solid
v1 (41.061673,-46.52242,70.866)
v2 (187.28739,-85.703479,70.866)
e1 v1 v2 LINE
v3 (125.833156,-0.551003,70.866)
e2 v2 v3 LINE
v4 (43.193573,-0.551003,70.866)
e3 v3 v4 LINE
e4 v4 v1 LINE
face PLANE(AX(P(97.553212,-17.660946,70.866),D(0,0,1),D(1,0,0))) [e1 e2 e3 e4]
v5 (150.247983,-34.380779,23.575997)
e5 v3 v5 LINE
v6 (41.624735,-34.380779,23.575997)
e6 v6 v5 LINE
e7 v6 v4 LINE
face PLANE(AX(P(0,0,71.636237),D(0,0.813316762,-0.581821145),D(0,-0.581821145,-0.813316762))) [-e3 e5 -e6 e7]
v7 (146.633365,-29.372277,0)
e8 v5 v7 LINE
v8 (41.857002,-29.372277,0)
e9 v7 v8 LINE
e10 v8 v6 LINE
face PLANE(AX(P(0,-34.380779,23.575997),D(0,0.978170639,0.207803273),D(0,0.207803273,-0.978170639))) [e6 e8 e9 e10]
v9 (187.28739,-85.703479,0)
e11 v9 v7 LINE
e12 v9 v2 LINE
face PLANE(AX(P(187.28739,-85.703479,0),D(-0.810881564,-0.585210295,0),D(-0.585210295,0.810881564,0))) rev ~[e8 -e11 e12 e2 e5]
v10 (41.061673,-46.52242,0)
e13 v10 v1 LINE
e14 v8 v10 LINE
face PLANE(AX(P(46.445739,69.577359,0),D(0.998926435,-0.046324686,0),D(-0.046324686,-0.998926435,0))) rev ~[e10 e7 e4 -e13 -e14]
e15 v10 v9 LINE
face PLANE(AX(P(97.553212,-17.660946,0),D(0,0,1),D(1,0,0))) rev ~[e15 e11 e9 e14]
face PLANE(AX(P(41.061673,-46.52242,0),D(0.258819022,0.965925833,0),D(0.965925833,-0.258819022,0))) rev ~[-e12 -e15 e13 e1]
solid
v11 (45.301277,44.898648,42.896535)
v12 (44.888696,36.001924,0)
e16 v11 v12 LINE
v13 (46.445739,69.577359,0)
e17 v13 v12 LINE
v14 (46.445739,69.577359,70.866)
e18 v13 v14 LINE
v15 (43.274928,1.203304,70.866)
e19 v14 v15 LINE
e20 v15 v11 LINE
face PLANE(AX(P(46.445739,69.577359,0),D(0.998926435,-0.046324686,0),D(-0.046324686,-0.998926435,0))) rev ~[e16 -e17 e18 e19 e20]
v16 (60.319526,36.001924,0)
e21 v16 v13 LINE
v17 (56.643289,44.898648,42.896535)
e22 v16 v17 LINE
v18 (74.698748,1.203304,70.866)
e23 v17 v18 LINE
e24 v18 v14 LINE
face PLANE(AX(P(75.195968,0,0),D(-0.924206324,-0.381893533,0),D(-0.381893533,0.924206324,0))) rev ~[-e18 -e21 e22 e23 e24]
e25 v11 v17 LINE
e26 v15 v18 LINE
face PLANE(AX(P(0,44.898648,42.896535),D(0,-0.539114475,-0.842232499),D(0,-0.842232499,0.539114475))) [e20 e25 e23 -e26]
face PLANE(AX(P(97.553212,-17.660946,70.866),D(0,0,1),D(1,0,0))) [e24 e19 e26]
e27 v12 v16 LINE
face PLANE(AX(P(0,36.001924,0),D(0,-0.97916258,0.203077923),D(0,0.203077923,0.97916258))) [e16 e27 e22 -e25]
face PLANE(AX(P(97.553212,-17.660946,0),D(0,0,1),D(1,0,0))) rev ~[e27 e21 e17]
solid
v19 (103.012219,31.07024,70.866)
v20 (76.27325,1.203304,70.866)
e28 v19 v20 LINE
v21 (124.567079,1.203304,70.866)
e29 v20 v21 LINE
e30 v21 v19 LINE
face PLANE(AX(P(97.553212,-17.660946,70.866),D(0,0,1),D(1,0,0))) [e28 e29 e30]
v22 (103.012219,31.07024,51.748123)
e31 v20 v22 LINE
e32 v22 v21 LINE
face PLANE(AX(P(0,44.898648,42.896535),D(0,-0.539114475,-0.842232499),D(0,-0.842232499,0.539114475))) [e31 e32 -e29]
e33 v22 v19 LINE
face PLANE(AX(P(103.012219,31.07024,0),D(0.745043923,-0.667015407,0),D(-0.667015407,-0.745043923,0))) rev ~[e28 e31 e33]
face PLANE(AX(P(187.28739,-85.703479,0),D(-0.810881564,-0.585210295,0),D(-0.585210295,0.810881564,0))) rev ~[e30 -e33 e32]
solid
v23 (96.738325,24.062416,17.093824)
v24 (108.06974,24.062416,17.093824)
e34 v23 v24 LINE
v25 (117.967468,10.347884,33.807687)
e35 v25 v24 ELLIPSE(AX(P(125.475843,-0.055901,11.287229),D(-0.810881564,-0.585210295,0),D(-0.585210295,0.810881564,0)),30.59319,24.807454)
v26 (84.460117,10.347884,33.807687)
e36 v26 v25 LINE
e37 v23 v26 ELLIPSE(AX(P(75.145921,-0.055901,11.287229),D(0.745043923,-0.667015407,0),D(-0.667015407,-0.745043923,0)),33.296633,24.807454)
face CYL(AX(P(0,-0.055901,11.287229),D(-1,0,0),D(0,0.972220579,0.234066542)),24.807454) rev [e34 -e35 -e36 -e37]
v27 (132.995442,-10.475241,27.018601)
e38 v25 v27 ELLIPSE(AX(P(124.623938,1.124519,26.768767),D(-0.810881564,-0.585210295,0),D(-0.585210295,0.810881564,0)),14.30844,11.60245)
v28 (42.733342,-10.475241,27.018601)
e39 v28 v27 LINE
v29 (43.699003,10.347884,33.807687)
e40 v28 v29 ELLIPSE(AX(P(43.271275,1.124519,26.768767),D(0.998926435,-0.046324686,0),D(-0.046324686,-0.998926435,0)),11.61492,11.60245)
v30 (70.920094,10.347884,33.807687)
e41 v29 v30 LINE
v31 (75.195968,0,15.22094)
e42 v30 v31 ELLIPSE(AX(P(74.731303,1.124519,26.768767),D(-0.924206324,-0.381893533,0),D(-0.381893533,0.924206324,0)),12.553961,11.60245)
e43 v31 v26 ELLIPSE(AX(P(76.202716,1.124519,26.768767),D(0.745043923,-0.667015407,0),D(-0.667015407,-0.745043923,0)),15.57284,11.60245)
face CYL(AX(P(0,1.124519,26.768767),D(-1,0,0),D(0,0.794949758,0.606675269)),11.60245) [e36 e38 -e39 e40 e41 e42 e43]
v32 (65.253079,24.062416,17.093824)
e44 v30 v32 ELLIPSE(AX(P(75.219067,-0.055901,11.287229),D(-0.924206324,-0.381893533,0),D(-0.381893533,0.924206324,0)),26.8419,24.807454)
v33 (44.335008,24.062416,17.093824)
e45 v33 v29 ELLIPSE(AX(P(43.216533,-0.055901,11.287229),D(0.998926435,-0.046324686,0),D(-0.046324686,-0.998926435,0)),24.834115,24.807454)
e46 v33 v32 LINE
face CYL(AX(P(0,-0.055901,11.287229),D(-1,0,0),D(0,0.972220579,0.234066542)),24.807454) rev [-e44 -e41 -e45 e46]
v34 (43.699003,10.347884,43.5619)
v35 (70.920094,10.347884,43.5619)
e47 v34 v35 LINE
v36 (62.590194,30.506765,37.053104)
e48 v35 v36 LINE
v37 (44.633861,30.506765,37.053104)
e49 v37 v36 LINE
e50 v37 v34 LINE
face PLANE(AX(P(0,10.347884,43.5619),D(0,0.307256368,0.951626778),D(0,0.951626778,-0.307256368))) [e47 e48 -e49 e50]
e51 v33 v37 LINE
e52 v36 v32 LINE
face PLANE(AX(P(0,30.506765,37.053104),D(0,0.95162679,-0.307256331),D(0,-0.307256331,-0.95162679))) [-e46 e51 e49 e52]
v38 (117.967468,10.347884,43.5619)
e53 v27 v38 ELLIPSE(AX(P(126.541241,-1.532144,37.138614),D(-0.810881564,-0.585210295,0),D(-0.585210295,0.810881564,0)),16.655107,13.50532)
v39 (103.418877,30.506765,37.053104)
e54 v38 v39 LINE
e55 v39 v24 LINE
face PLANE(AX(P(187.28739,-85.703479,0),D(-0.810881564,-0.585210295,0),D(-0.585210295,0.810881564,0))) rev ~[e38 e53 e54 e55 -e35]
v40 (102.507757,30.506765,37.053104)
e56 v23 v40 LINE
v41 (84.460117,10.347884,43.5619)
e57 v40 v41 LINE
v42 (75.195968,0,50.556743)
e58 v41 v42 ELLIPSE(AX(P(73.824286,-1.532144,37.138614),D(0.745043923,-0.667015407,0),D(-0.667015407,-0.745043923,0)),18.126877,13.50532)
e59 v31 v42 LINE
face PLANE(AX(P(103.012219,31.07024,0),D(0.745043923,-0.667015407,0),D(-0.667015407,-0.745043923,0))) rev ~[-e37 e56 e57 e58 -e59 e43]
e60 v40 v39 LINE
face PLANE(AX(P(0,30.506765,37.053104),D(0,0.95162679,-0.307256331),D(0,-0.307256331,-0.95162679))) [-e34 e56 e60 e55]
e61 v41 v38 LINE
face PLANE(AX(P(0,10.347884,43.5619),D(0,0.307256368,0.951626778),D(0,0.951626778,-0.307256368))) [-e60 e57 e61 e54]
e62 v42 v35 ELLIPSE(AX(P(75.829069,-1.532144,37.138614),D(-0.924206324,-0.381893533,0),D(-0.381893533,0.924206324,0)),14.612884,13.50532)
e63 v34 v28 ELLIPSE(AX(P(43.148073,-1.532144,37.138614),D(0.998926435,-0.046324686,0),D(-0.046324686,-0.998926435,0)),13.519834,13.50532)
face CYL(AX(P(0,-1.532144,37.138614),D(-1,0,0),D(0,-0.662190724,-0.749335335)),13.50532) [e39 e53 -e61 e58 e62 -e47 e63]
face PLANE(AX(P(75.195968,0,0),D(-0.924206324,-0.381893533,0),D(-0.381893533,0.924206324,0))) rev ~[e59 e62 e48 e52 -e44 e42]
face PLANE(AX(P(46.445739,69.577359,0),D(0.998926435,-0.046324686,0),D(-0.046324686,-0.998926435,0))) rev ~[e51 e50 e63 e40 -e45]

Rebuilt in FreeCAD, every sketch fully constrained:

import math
import FreeCAD as App
import Part
import Sketcher
from FreeCAD import Vector
Q = App.Units.Quantity


def add_polygon(sketch, points):
    """Adds a closed chain of lines whose ends are joined by coincident constraints."""
    first, n = sketch.GeometryCount, len(points)
    for a, b in zip(points, points[1:] + points[:1]):
        sketch.addGeometry(Part.LineSegment(App.Vector(*a, 0), App.Vector(*b, 0)), False)
    for i in range(n):
        sketch.addConstraint(Sketcher.Constraint("Coincident", first + i, 2, first + (i + 1) % n, 1))

doc = App.newDocument("Part")
body = doc.addObject("PartDesign::Body", "Body")
body.AllowCompound = True

# Sketch on XY plane
sketch1 = doc.addObject("Sketcher::SketchObject", "Sketch")
body.addObject(sketch1)
sketch1.AttachmentSupport = (doc.XY_Plane, [""])
sketch1.MapMode = "FlatFace"
add_polygon(sketch1, [(46, 70), (41, -47), (187, -86), (103, 31), (75, 0)])  # lines 0-4
sketch1.addConstraint([
    Sketcher.Constraint("PointOnObject", 3, 2, -1),
    Sketcher.Constraint("Angle", 1, Q("-14.999999 deg")),
    Sketcher.Constraint("Distance", 1, Q("5.96 in")),
    Sketcher.Constraint("Distance", 3, Q("41.702561 mm")),
    Sketcher.Constraint("Distance", 4, Q("75.283362 mm")),
    Sketcher.Constraint("DistanceY", 0, 2, -1, 1, Q("46.52242 mm")),
    Sketcher.Constraint("DistanceX", -1, 1, 1, 2, Q("187.28739 mm")),
    Sketcher.Constraint("DistanceX", -1, 1, 2, 2, Q("103.012219 mm")),
    Sketcher.Constraint("DistanceY", -1, 1, 2, 2, Q("31.07024 mm")),
    Sketcher.Constraint("DistanceX", -1, 1, 4, 2, Q("46.445739 mm")),
])
pad1 = doc.addObject("PartDesign::Pad", "Pad")
body.addObject(pad1)
pad1.Profile = sketch1
pad1.Length = Q("2.79 in")

# Sketch on YZ plane
sketch2 = doc.addObject("Sketcher::SketchObject", "Sketch001")
body.addObject(sketch2)
sketch2.AttachmentSupport = (doc.YZ_Plane, [""])
sketch2.MapMode = "FlatFace"
add_polygon(sketch2, [(-27.932592, -6.77688), (36.001924, 0), (44.898648, 42.896535), (0, 71.636237), (-34.380779, 23.575997)])  # lines 0-4
sketch2.addGeometry(Part.LineSegment(Vector(10.347884, 43.5619, 0), Vector(30.506765, 37.053104, 0)), False)  # 5
sketch2.addGeometry(Part.LineSegment(Vector(30.506765, 37.053104, 0), Vector(24.062416, 17.093824, 0)), False)  # 6
sketch2.addGeometry(Part.ArcOfCircle(Part.Circle(Vector(-0.055901, 11.287229, 0), Vector(0, 0, 1), 24.807454), math.radians(13.536605), math.radians(65.20446)), False)  # 7
sketch2.addGeometry(Part.ArcOfCircle(Part.Circle(Vector(1.124519, 26.768767, 0), Vector(0, 0, 1), 11.60245), math.radians(178.766164), math.radians(397.34949)), False)  # 8
sketch2.addGeometry(Part.ArcOfCircle(Part.Circle(Vector(-1.532144, 37.138614, 0), Vector(0, 0, 1), 13.50532), math.radians(28.399175), math.radians(228.532835)), False)  # 9
sketch2.addConstraint([
    Sketcher.Constraint("Coincident", 5, 2, 6, 1),
    Sketcher.Constraint("Coincident", 6, 2, 7, 1),
    Sketcher.Constraint("Coincident", 7, 2, 8, 2),
    Sketcher.Constraint("Coincident", 8, 1, 9, 2),
    Sketcher.Constraint("Coincident", 9, 1, 5, 1),
    Sketcher.Constraint("PointOnObject", 0, 2, -1),
    Sketcher.Constraint("PointOnObject", 2, 2, -2),
    Sketcher.Constraint("Distance", 5, Q("0.834 in")),
    Sketcher.Constraint("Radius", 8, Q("11.60245 mm")),
    Sketcher.Constraint("Radius", 9, Q("13.50532 mm")),
    Sketcher.Constraint("Radius", 7, Q("24.807454 mm")),
    Sketcher.Constraint("DistanceX", 7, 3, -1, 1, Q("0.055901 mm")),
    Sketcher.Constraint("DistanceY", -1, 1, 8, 1, Q("27.018601 mm")),
    Sketcher.Constraint("DistanceY", -1, 1, 9, 1, Q("43.5619 mm")),
    Sketcher.Constraint("DistanceY", 1, 2, 2, 2, Q("28.739702 mm")),
    Sketcher.Constraint("DistanceX", 3, 2, 8, 3, Q("35.505298 mm")),
    Sketcher.Constraint("Distance", 1, Q("43.80941 mm")),
    Sketcher.Constraint("Distance", 2, Q("53.30909 mm")),
    Sketcher.Constraint("DistanceY", -1, 1, 7, 3, Q("11.287229 mm")),
    Sketcher.Constraint("DistanceX", -1, 1, 8, 3, Q("1.124519 mm")),
    Sketcher.Constraint("DistanceX", 4, 2, -1, 1, Q("27.932592 mm")),
    Sketcher.Constraint("DistanceY", 4, 2, -1, 1, Q("6.77688 mm")),
    Sketcher.Constraint("DistanceX", 8, 1, -1, 1, Q("10.475241 mm")),
    Sketcher.Constraint("DistanceX", 9, 3, 1, 2, Q("46.430792 mm")),
    Sketcher.Constraint("DistanceY", 9, 3, 1, 2, Q("5.757921 mm")),
    Sketcher.Constraint("DistanceY", 3, 2, 8, 3, Q("3.19277 mm")),
    Sketcher.Constraint("DistanceY", 5, 2, 1, 2, Q("5.843431 mm")),
    Sketcher.Constraint("DistanceX", 6, 2, 0, 2, Q("11.939508 mm")),
])
pocket1 = doc.addObject("PartDesign::Pocket", "Pocket")
body.addObject(pocket1)
pocket1.Profile = sketch2
pocket1.Length = Q("8.48 in")
pocket1.Reversed = True

doc.recompute()
